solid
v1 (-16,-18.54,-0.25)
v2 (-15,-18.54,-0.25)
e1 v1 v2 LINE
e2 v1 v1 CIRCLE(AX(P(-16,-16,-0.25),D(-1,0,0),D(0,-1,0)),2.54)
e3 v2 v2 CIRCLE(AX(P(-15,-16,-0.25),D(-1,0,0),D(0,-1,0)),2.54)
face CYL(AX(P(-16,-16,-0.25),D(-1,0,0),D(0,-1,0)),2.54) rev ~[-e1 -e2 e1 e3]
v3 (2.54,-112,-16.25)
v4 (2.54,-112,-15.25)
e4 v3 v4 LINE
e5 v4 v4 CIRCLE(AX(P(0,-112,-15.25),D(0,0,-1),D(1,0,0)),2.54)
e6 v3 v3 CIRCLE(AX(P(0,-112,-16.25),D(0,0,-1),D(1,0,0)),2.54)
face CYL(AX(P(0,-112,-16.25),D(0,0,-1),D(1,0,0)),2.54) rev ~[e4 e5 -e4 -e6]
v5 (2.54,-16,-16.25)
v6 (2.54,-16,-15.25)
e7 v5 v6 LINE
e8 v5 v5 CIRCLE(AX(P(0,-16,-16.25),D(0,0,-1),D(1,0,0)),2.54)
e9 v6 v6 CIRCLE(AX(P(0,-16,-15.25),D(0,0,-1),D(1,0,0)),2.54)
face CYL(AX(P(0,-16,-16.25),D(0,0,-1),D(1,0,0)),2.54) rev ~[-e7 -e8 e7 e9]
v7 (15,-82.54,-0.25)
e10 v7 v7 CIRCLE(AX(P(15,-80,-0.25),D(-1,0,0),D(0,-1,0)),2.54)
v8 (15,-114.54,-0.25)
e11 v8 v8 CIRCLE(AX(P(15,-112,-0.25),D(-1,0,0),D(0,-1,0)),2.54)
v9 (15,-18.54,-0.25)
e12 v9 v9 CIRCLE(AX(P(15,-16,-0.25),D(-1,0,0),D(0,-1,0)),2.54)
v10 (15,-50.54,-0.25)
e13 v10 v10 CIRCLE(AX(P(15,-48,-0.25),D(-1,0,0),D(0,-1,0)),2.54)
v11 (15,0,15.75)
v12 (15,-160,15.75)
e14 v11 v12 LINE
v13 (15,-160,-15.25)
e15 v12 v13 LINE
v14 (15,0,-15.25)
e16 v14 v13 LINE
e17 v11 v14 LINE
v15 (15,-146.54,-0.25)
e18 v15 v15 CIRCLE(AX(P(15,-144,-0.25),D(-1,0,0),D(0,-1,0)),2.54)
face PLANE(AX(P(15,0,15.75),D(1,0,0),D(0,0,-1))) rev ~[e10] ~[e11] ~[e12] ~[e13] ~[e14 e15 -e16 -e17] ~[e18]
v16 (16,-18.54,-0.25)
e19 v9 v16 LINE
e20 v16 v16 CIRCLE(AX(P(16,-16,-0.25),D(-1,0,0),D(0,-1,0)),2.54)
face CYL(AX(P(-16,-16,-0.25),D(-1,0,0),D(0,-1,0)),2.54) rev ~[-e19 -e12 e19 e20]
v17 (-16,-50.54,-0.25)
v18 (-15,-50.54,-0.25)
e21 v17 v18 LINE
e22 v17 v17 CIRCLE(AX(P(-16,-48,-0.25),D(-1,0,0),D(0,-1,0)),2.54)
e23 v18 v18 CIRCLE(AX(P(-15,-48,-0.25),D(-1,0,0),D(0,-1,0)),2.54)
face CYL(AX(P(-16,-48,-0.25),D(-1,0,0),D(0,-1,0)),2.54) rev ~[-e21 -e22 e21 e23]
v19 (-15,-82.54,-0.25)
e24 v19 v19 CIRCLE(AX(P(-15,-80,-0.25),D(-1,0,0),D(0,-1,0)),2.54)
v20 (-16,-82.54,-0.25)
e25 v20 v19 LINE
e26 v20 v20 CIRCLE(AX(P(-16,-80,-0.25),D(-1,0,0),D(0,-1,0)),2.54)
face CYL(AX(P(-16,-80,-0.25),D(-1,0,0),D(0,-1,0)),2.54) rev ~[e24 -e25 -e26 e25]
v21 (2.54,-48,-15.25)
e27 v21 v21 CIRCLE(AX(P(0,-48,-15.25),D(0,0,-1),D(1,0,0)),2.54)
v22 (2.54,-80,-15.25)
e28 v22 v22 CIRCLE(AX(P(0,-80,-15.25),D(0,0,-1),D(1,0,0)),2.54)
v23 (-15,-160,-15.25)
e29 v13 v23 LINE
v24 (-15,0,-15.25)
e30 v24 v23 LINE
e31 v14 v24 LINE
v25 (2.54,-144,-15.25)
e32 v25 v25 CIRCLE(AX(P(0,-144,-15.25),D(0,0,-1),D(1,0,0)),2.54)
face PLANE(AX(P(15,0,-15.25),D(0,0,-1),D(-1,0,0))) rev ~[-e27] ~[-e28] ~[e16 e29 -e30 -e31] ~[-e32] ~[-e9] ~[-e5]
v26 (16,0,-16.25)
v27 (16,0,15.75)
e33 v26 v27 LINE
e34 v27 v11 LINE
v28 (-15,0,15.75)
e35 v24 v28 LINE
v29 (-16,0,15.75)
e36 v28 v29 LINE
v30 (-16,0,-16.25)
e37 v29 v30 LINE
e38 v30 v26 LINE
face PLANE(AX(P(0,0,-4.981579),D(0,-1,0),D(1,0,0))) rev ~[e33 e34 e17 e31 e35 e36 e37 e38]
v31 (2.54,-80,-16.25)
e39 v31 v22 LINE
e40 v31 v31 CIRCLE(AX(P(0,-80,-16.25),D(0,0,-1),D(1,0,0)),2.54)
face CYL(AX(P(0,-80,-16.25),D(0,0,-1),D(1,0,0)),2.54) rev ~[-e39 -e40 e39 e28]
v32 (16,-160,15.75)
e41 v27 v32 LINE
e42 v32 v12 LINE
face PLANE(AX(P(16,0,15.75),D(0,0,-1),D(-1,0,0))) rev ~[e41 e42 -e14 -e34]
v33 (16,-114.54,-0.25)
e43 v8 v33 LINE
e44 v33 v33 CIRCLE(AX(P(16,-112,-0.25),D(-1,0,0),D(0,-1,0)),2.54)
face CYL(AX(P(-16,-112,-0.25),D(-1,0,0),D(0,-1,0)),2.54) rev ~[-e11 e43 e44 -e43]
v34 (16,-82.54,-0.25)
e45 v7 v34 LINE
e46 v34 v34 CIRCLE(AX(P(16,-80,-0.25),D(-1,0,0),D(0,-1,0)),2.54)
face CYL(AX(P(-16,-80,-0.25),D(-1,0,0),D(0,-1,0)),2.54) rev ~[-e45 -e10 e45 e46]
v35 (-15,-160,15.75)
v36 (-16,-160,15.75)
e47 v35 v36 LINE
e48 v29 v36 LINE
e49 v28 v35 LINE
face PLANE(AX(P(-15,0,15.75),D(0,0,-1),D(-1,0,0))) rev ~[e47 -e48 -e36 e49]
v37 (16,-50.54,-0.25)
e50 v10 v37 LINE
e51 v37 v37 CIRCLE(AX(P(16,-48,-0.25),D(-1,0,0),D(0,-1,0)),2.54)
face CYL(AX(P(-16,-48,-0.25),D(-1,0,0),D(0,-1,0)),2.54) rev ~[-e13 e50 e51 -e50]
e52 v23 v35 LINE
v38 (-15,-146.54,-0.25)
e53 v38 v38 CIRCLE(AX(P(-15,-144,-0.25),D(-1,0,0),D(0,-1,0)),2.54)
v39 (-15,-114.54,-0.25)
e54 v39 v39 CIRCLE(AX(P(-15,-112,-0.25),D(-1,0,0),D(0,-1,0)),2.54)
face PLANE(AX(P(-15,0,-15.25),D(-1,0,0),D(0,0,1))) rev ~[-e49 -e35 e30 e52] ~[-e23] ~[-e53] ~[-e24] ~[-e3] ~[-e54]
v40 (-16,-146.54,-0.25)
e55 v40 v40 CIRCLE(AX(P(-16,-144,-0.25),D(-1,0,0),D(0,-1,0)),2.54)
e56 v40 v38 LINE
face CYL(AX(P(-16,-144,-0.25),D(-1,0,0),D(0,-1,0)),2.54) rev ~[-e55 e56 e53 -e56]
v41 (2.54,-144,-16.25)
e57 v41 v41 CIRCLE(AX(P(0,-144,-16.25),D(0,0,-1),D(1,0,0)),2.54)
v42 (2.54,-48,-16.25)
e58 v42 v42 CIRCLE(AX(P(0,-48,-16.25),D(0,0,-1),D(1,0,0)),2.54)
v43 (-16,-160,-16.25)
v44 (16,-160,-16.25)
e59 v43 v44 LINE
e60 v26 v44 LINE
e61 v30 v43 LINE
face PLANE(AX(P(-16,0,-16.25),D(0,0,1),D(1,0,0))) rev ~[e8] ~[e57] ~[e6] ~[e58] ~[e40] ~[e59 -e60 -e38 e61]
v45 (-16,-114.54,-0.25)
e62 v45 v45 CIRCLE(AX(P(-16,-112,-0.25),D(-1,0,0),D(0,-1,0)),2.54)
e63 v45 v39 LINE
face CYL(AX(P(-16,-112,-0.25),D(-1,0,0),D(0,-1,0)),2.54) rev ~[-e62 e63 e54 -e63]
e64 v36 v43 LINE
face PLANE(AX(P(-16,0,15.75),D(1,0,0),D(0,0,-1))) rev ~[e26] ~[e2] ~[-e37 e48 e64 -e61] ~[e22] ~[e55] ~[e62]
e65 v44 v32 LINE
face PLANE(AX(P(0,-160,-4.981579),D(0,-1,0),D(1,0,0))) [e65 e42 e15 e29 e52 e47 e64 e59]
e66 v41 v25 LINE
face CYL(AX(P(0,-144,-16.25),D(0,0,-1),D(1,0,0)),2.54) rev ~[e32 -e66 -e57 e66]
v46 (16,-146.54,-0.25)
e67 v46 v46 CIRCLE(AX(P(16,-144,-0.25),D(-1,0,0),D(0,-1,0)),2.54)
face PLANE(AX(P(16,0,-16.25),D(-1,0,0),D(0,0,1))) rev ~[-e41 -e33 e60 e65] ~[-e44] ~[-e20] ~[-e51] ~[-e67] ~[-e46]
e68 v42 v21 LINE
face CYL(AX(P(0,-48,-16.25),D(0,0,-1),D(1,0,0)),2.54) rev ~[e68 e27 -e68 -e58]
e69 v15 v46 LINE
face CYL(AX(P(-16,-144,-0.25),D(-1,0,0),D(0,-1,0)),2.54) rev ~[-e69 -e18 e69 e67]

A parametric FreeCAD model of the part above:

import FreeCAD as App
import Part
import Sketcher

V = App.Vector
Q = App.Units.Quantity

doc = App.newDocument("Part")
body = doc.addObject("PartDesign::Body", "Body")

# Sketch on XZ plane
sketch1 = doc.addObject("Sketcher::SketchObject", "Sketch")
body.addObject(sketch1)
sketch1.AttachmentSupport = (doc.XZ_Plane, [""])
sketch1.MapMode = "FlatFace"
sketch1.addGeometry([
    Part.LineSegment(V(-15, 15.8, 0), V(-16, 15.8, 0)),  # 0
    Part.LineSegment(V(-16, 15.8, 0), V(-16, -16.2, 0)),  # 1
    Part.LineSegment(V(-16, -16.2, 0), V(16, -16.2, 0)),  # 2
    Part.LineSegment(V(16, -16.2, 0), V(16, 15.8, 0)),  # 3
    Part.LineSegment(V(16, 15.8, 0), V(15, 15.8, 0)),  # 4
    Part.LineSegment(V(15, 15.8, 0), V(15, -15.2, 0)),  # 5
    Part.LineSegment(V(15, -15.2, 0), V(-15, -15.2, 0)),  # 6
    Part.LineSegment(V(-15, -15.2, 0), V(-15, 15.8, 0)),  # 7
], False)
sketch1.addConstraint([
    Sketcher.Constraint("Coincident", 0, 2, 1, 1),
    Sketcher.Constraint("Coincident", 1, 2, 2, 1),
    Sketcher.Constraint("Coincident", 2, 2, 3, 1),
    Sketcher.Constraint("Coincident", 3, 2, 4, 1),
    Sketcher.Constraint("Coincident", 4, 2, 5, 1),
    Sketcher.Constraint("Coincident", 5, 2, 6, 1),
    Sketcher.Constraint("Coincident", 6, 2, 7, 1),
    Sketcher.Constraint("Coincident", 7, 2, 0, 1),
    Sketcher.Constraint("Horizontal", 0),
    Sketcher.Constraint("Vertical", 1),
    Sketcher.Constraint("Horizontal", 2),
    Sketcher.Constraint("Vertical", 3),
    Sketcher.Constraint("Horizontal", 4),
    Sketcher.Constraint("Vertical", 5),
    Sketcher.Constraint("Horizontal", 6),
    Sketcher.Constraint("Vertical", 7),
    Sketcher.Constraint("Symmetric", 0, 2, 3, 2, -2),
    Sketcher.Constraint("Equal", 0, 4),
    Sketcher.Constraint("Equal", 2, 1),
    Sketcher.Constraint("DistanceX", 0, 2, 0, 1, Q("1 mm")),
    Sketcher.Constraint("DistanceX", 2, 1, 2, 2, Q("32 mm")),
    Sketcher.Constraint("DistanceY", 5, 2, 5, 1, Q("31 mm")),
    Sketcher.Constraint("DistanceY", -1, 1, 0, 2, Q("15.75 mm")),
])
pad1 = doc.addObject("PartDesign::Pad", "Pad")
body.addObject(pad1)
pad1.Profile = sketch1
pad1.Length = 160

# Sketch on YZ plane
sketch2 = doc.addObject("Sketcher::SketchObject", "Sketch001")
body.addObject(sketch2)
sketch2.AttachmentSupport = (doc.YZ_Plane, [""])
sketch2.MapMode = "FlatFace"
sketch2.AttachmentOffset = App.Placement(V(0, 0, -16), App.Rotation())
sketch2.addGeometry([
    Part.Circle(V(-16, -0.2, 0), V(0, 0, 1), 2.5),  # 0
    Part.Circle(V(-48, -0.2, 0), V(0, 0, 1), 2.5),  # 1
    Part.Circle(V(-80, -0.2, 0), V(0, 0, 1), 2.5),  # 2
    Part.Circle(V(-112, -0.2, 0), V(0, 0, 1), 2.5),  # 3
    Part.Circle(V(-144, -0.2, 0), V(0, 0, 1), 2.5),  # 4
], False)
sketch2.addConstraint([
    Sketcher.Constraint("Equal", 0, 1),
    Sketcher.Constraint("Equal", 1, 2),
    Sketcher.Constraint("Equal", 2, 3),
    Sketcher.Constraint("Equal", 3, 4),
    Sketcher.Constraint("Horizontal", 0, 3, 1, 3),
    Sketcher.Constraint("Horizontal", 1, 3, 2, 3),
    Sketcher.Constraint("Horizontal", 2, 3, 3, 3),
    Sketcher.Constraint("Horizontal", 3, 3, 4, 3),
    Sketcher.Constraint("Diameter", 0, Q("5.08 mm")),
    Sketcher.Constraint("DistanceX", 0, 3, -1, 1, Q("16 mm")),
    Sketcher.Constraint("DistanceX", 1, 3, -1, 1, Q("48 mm")),
    Sketcher.Constraint("DistanceX", 2, 3, -1, 1, Q("80 mm")),
    Sketcher.Constraint("DistanceX", 3, 3, -1, 1, Q("112 mm")),
    Sketcher.Constraint("DistanceX", 4, 3, -1, 1, Q("144 mm")),
    Sketcher.Constraint("DistanceY", 0, 3, -1, 1, Q("0.25 mm")),
])
pocket1 = doc.addObject("PartDesign::Pocket", "Pocket")
body.addObject(pocket1)
pocket1.Profile = sketch2
pocket1.Length = 50.8
pocket1.Reversed = True

# Sketch on XY plane
sketch3 = doc.addObject("Sketcher::SketchObject", "Sketch002")
body.addObject(sketch3)
sketch3.AttachmentSupport = (doc.XY_Plane, [""])
sketch3.MapMode = "FlatFace"
sketch3.AttachmentOffset = App.Placement(V(0, 0, -16.25), App.Rotation())
sketch3.addGeometry([
    Part.Circle(V(0, -144, 0), V(0, 0, 1), 2.5),  # 0
    Part.Circle(V(0, -112, 0), V(0, 0, 1), 2.5),  # 1
    Part.Circle(V(0, -80, 0), V(0, 0, 1), 2.5),  # 2
    Part.Circle(V(0, -48, 0), V(0, 0, 1), 2.5),  # 3
    Part.Circle(V(0, -16, 0), V(0, 0, 1), 2.5),  # 4
], False)
sketch3.addConstraint([
    Sketcher.Constraint("Equal", 0, 1),
    Sketcher.Constraint("Equal", 1, 2),
    Sketcher.Constraint("Equal", 2, 3),
    Sketcher.Constraint("Equal", 3, 4),
    Sketcher.Constraint("PointOnObject", 0, 3, -2),
    Sketcher.Constraint("PointOnObject", 1, 3, -2),
    Sketcher.Constraint("PointOnObject", 2, 3, -2),
    Sketcher.Constraint("PointOnObject", 3, 3, -2),
    Sketcher.Constraint("PointOnObject", 4, 3, -2),
    Sketcher.Constraint("Diameter", 0, Q("5.08 mm")),
    Sketcher.Constraint("DistanceY", 0, 3, -1, 1, Q("144 mm")),
    Sketcher.Constraint("DistanceY", 1, 3, -1, 1, Q("112 mm")),
    Sketcher.Constraint("DistanceY", 2, 3, -1, 1, Q("80 mm")),
    Sketcher.Constraint("DistanceY", 3, 3, -1, 1, Q("48 mm")),
    Sketcher.Constraint("DistanceY", 4, 3, -1, 1, Q("16 mm")),
])
pocket2 = doc.addObject("PartDesign::Pocket", "Pocket001")
body.addObject(pocket2)
pocket2.Profile = sketch3
pocket2.Length = 25.4
pocket2.Reversed = True

doc.recompute()
